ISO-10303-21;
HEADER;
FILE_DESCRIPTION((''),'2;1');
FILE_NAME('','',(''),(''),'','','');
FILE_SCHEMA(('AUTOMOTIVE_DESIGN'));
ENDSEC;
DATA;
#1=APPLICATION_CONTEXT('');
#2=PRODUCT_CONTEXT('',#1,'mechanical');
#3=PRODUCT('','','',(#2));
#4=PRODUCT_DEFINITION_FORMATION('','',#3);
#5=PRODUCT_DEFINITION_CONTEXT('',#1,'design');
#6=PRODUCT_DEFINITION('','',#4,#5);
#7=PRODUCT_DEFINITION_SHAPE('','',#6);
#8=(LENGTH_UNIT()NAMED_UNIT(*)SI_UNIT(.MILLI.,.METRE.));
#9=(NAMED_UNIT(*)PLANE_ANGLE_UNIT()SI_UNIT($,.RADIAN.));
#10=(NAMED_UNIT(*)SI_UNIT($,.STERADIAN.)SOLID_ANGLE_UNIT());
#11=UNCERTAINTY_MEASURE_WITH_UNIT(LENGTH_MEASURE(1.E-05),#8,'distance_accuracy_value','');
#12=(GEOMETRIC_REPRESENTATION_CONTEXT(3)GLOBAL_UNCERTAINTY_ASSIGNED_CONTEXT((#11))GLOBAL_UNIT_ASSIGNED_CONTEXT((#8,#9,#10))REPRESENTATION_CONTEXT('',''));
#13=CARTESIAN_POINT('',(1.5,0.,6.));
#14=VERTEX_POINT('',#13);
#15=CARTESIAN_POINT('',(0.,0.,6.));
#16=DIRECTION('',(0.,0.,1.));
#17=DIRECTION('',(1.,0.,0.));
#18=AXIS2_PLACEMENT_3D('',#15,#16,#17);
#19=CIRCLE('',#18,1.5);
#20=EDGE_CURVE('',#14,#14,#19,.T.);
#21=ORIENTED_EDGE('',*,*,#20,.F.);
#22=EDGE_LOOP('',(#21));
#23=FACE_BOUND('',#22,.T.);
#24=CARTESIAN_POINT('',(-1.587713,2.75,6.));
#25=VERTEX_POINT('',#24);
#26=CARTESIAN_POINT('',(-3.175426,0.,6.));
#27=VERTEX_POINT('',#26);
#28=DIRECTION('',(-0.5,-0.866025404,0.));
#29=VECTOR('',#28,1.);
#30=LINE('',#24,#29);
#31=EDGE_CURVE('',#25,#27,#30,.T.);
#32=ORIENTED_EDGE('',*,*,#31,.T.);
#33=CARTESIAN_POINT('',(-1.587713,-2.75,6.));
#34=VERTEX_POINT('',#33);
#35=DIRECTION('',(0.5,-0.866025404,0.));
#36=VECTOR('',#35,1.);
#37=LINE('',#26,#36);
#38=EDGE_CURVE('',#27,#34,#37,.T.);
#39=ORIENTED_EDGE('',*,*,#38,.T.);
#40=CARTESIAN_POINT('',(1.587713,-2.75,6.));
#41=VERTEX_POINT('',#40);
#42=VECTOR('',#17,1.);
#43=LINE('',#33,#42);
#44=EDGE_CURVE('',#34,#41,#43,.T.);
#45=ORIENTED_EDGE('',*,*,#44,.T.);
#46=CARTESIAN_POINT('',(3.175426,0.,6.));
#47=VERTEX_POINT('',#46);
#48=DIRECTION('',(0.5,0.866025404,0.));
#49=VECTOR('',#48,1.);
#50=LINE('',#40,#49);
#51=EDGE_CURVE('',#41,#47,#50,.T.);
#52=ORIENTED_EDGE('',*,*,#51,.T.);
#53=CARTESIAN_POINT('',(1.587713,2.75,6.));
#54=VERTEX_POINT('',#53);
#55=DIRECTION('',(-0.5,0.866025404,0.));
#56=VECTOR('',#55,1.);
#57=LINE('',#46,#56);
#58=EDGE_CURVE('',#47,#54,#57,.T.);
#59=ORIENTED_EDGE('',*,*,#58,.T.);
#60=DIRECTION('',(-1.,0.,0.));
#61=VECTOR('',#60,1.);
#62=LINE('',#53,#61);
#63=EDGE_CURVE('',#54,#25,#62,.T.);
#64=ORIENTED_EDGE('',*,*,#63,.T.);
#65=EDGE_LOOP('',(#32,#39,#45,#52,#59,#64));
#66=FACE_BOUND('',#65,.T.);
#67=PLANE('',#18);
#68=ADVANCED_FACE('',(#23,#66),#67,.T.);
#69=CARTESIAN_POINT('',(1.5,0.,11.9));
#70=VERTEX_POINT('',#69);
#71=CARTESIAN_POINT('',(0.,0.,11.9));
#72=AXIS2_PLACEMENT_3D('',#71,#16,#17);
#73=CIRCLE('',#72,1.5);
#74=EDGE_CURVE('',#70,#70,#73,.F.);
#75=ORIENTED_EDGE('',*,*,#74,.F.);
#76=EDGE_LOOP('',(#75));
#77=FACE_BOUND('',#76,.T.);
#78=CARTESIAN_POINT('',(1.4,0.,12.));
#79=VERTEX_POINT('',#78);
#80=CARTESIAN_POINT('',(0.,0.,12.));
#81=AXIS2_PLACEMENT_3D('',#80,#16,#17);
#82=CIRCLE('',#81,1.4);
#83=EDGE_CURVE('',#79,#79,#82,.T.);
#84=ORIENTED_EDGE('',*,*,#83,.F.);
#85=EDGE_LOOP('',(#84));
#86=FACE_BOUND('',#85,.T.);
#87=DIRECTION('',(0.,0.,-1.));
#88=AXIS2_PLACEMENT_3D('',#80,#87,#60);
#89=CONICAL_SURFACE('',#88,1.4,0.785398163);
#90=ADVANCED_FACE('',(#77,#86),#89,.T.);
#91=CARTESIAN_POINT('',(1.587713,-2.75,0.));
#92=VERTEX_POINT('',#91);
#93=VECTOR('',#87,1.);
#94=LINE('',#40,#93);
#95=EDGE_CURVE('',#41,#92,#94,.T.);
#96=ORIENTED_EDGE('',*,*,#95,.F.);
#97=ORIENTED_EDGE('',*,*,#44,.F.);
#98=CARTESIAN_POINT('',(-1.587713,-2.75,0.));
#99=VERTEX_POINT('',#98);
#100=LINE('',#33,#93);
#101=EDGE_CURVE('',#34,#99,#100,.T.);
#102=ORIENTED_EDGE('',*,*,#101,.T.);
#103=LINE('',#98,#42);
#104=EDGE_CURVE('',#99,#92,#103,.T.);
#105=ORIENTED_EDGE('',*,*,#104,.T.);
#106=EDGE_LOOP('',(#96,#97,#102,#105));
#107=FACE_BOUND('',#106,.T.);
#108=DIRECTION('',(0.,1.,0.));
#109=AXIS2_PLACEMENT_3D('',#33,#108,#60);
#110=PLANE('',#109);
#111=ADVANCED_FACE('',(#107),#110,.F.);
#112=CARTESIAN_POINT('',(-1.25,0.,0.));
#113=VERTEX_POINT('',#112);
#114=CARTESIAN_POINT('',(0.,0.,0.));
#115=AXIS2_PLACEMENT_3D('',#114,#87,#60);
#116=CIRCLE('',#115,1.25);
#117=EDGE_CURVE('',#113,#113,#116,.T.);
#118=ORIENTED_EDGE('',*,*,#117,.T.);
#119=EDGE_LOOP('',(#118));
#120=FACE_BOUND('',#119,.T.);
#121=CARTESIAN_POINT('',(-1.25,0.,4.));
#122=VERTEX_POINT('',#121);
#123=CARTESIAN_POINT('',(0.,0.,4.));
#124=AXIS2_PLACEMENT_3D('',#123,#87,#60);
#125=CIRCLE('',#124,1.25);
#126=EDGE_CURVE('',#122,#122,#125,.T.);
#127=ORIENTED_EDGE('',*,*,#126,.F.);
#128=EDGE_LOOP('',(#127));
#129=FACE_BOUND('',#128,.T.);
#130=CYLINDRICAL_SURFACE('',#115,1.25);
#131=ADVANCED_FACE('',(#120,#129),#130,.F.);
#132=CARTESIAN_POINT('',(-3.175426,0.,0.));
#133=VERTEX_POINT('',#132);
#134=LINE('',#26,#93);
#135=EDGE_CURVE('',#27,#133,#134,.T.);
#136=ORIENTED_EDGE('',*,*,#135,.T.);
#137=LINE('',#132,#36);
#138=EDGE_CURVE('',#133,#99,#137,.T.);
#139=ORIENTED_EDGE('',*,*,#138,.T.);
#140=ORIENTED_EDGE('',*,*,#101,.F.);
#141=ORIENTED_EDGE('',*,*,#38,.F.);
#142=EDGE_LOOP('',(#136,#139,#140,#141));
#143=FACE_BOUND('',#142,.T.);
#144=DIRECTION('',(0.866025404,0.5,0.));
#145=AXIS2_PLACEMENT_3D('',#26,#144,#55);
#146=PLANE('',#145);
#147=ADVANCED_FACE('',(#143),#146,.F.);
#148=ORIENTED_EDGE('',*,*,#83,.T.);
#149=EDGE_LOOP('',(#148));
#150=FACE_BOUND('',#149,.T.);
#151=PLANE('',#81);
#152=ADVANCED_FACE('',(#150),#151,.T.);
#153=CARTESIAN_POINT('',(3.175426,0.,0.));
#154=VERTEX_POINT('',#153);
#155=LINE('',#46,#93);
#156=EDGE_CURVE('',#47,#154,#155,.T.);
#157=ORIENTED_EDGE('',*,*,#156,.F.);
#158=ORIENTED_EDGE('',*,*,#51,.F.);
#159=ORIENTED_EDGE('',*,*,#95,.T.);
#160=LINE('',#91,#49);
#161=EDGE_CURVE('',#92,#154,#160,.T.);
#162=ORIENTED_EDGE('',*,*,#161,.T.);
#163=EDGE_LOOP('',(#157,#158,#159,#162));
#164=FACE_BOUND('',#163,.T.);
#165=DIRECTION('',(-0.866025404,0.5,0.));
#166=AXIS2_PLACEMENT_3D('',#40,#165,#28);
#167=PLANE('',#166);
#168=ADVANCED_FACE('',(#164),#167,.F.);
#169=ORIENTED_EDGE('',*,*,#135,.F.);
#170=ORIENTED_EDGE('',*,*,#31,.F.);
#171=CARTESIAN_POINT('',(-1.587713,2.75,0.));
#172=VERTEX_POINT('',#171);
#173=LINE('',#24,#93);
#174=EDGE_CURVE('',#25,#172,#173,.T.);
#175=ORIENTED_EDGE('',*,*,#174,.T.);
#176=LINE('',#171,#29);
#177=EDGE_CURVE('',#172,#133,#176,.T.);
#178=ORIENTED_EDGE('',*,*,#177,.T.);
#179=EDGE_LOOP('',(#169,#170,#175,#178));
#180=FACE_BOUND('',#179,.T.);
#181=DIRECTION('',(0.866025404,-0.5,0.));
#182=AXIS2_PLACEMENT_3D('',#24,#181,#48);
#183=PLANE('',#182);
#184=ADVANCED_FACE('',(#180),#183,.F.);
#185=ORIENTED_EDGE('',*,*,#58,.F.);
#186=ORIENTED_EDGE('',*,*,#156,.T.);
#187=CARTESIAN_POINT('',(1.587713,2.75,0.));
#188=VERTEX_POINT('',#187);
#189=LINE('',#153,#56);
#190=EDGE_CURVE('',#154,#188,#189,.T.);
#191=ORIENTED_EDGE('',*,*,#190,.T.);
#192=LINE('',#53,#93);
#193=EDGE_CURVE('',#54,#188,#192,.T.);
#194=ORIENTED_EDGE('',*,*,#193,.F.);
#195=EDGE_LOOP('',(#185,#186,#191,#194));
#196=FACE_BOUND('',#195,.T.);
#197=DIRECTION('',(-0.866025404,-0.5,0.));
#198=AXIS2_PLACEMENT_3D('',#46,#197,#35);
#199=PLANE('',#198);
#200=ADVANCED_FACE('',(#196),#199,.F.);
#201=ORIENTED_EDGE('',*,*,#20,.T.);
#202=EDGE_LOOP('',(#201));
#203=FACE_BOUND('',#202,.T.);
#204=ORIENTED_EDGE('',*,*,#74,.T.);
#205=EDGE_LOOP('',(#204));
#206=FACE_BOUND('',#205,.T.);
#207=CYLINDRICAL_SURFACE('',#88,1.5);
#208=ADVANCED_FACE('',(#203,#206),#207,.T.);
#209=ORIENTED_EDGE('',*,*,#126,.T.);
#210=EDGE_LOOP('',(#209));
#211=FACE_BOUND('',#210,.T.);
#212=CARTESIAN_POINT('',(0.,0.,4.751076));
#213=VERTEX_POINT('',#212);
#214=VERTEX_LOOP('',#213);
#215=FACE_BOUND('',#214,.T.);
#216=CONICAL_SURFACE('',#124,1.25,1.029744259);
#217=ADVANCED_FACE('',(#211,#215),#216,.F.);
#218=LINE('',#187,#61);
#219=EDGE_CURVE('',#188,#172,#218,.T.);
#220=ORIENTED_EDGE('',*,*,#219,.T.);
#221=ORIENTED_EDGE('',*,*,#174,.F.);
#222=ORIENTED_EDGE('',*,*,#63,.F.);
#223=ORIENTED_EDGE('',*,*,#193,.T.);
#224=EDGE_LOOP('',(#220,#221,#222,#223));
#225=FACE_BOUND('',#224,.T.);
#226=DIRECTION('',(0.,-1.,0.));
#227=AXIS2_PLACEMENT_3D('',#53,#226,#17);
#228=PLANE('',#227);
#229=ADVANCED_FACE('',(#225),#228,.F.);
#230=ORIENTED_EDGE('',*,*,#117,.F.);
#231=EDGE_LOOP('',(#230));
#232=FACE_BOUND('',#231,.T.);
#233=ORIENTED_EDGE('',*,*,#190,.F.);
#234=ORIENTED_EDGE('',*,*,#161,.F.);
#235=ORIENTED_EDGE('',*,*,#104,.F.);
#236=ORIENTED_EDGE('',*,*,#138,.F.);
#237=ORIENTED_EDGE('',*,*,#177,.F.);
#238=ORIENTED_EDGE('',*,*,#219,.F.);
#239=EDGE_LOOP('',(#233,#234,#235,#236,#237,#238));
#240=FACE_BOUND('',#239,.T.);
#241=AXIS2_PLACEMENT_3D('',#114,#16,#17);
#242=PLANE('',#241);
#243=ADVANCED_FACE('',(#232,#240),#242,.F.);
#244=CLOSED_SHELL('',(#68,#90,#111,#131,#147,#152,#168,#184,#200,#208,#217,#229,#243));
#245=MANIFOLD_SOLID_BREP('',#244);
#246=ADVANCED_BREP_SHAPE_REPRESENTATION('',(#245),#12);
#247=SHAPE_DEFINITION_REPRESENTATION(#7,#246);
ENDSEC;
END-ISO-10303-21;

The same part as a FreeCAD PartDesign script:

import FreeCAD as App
import Part
import Sketcher
from FreeCAD import Vector
Q = App.Units.Quantity


def edges_at(feature, points):
    """Names of the edges that pass closest to the given points."""
    edges = feature.Shape.Edges
    near = lambda p: min(range(len(edges)), key=lambda i: edges[i].distToShape(Part.Vertex(*p))[0])
    return sorted({f"Edge{near(p) + 1}" for p in points})


def add_polygon(sketch, points):
    """Adds a closed chain of lines whose ends are joined by coincident constraints."""
    first, n = sketch.GeometryCount, len(points)
    for a, b in zip(points, points[1:] + points[:1]):
        sketch.addGeometry(Part.LineSegment(App.Vector(*a, 0), App.Vector(*b, 0)), False)
    for i in range(n):
        sketch.addConstraint(Sketcher.Constraint("Coincident", first + i, 2, first + (i + 1) % n, 1))

doc = App.newDocument("Part")
body = doc.addObject("PartDesign::Body", "Body")

# Sketch on XY plane
sketch1 = body.newObject("Sketcher::SketchObject", "Sketch")
sketch1.AttachmentSupport = (doc.getObject("XY_Plane"), [""])
sketch1.MapMode = "FlatFace"
add_polygon(sketch1, [(1.587713, 2.75), (-1.587713, 2.75), (-3.175426, 0), (-1.587713, -2.75), (1.587713, -2.75), (3.175426, 0)])  # lines 0-5
sketch1.addConstraint([
    Sketcher.Constraint("Horizontal", 0),
    Sketcher.Constraint("Horizontal", 3),
    Sketcher.Constraint("Symmetric", 0, 2, 3, 2, -1, 1),
    Sketcher.Constraint("Symmetric", 1, 2, 4, 2, -1, 1),
    Sketcher.Constraint("PointOnObject", 1, 2, -1),
    Sketcher.Constraint("Parallel", 2, 5),
    Sketcher.Constraint("Vertical", 0, 2, 2, 2),
    Sketcher.Constraint("Angle", 1, Q("-120 deg")),
    Sketcher.Constraint("DistanceY", 2, 2, 0, 2, Q("5.5 mm")),
    Sketcher.Constraint("DistanceX", 0, 2, 0, 1, Q("3.175426 mm")),
])
pad1 = body.newObject("PartDesign::Pad", "Pad")
pad1.Profile = sketch1
pad1.Length = 6

# Sketch on XY plane
sketch2 = body.newObject("Sketcher::SketchObject", "Sketch001")
sketch2.AttachmentSupport = (doc.getObject("XY_Plane"), [""])
sketch2.MapMode = "FlatFace"
sketch2.AttachmentOffset = App.Placement(Vector(0, 0, 6), App.Rotation())
sketch2.addGeometry(Part.Circle(Vector(0, 0, 0), Vector(0, 0, 1), 1.5), False)
sketch2.addConstraint([
    Sketcher.Constraint("Coincident", 0, 3, -1, 1),
    Sketcher.Constraint("Diameter", 0, Q("3 mm")),
])
pad2 = body.newObject("PartDesign::Pad", "Pad001")
pad2.Profile = sketch2
pad2.Length = 6

# Sketch on XY plane
sketch3 = body.newObject("Sketcher::SketchObject", "Sketch002")
sketch3.AttachmentSupport = (doc.getObject("XY_Plane"), [""])
sketch3.MapMode = "FlatFace"
sketch3.addGeometry(Part.Circle(Vector(0, 0, 0), Vector(0, 0, 1), 1.25), False)
sketch3.addConstraint([
    Sketcher.Constraint("Coincident", 0, 3, -1, 1),
    Sketcher.Constraint("Diameter", 0, Q("2.5 mm")),
])
doc.recompute()
hole = body.newObject("PartDesign::Hole", "Hole")
hole.Profile = sketch3
hole.ThreadType = "None"
hole.Diameter = 2.5
hole.DepthType = "Dimension"
hole.Depth = 4
hole.DrillPoint = "Angled"
hole.DrillPointAngle = 118
hole.Reversed = True
doc.recompute()

chamfer = body.newObject("PartDesign::Chamfer", "Chamfer")
chamfer.Base = (hole, edges_at(hole, [(-1.5, 0, 12)]))
chamfer.Size = 0.1

doc.recompute()
